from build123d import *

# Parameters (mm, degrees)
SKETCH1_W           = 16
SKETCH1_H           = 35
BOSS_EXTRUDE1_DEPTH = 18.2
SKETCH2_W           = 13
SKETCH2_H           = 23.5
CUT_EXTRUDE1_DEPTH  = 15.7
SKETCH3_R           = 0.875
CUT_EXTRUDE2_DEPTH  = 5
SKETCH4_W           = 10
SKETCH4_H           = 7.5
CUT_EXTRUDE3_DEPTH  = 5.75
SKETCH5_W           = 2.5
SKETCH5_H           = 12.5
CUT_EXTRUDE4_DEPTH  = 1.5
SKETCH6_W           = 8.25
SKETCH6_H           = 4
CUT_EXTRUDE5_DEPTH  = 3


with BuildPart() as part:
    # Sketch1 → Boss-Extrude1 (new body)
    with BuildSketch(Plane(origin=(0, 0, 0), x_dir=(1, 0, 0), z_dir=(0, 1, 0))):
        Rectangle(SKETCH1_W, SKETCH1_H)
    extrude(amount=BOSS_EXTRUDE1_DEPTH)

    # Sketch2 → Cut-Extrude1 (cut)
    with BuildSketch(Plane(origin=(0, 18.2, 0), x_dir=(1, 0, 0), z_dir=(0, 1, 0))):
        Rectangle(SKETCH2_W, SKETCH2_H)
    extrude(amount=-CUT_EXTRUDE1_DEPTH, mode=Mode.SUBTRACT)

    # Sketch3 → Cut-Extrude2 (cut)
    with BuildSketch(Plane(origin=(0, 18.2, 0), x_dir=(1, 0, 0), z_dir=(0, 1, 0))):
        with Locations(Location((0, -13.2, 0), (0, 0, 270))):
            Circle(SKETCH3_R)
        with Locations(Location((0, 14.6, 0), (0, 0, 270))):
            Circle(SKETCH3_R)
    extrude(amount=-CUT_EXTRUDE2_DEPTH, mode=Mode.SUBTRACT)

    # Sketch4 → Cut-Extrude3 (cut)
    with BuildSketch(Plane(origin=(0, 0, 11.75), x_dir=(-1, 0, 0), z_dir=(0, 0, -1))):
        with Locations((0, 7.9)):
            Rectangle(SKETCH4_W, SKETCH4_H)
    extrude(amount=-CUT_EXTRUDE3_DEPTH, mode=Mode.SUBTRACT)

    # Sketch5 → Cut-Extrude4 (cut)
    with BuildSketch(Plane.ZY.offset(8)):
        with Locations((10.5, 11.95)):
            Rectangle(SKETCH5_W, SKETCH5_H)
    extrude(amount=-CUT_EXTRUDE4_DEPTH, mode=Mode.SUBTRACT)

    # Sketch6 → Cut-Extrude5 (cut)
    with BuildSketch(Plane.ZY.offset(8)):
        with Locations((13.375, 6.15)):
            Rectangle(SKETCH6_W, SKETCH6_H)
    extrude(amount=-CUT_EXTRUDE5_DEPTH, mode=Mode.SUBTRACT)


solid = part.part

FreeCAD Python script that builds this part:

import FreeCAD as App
import Part
import Sketcher
from FreeCAD import Vector
Q = App.Units.Quantity

doc = App.newDocument("Part")
body = doc.addObject("PartDesign::Body", "Body")

# Sketch on XZ plane
sketch1 = doc.addObject("Sketcher::SketchObject", "Sketch")
body.addObject(sketch1)
sketch1.AttachmentSupport = (doc.XZ_Plane, [""])
sketch1.MapMode = "FlatFace"
sketch1.addGeometry(Part.LineSegment(Vector(-8, -18, 0), Vector(-8, 18, 0)), False)
sketch1.addGeometry(Part.LineSegment(Vector(-8, 18, 0), Vector(8, 18, 0)), False)
sketch1.addGeometry(Part.LineSegment(Vector(8, 18, 0), Vector(8, -18, 0)), False)
sketch1.addGeometry(Part.LineSegment(Vector(8, -18, 0), Vector(-8, -18, 0)), False)
sketch1.addConstraint(Sketcher.Constraint("Coincident", 0, 2, 1, 1))
sketch1.addConstraint(Sketcher.Constraint("Coincident", 1, 2, 2, 1))
sketch1.addConstraint(Sketcher.Constraint("Coincident", 2, 2, 3, 1))
sketch1.addConstraint(Sketcher.Constraint("Coincident", 3, 2, 0, 1))
sketch1.addConstraint(Sketcher.Constraint("Vertical", 0))
sketch1.addConstraint(Sketcher.Constraint("Horizontal", 1))
sketch1.addConstraint(Sketcher.Constraint("Vertical", 2))
sketch1.addConstraint(Sketcher.Constraint("Horizontal", 3))
sketch1.addConstraint(Sketcher.Constraint("Symmetric", 0, 2, 2, 2, -1, 1))
sketch1.addConstraint(Sketcher.Constraint("DistanceX", 1, 1, 1, 2, Q("16 mm")))
sketch1.addConstraint(Sketcher.Constraint("DistanceY", 0, 1, 0, 2, Q("35 mm")))
pad1 = doc.addObject("PartDesign::Pad", "Pad")
body.addObject(pad1)
pad1.Profile = sketch1
pad1.Length = 18.2
pad1.Reversed = True

# Sketch on XZ plane
sketch2 = doc.addObject("Sketcher::SketchObject", "Sketch001")
body.addObject(sketch2)
sketch2.AttachmentSupport = (doc.XZ_Plane, [""])
sketch2.MapMode = "FlatFace"
sketch2.AttachmentOffset = App.Placement(Vector(0, 0, -18.2), App.Rotation())
sketch2.addGeometry(Part.LineSegment(Vector(-6, -12, 0), Vector(-6, 12, 0)), False)
sketch2.addGeometry(Part.LineSegment(Vector(-6, 12, 0), Vector(6, 12, 0)), False)
sketch2.addGeometry(Part.LineSegment(Vector(6, 12, 0), Vector(6, -12, 0)), False)
sketch2.addGeometry(Part.LineSegment(Vector(6, -12, 0), Vector(-6, -12, 0)), False)
sketch2.addConstraint(Sketcher.Constraint("Coincident", 0, 2, 1, 1))
sketch2.addConstraint(Sketcher.Constraint("Coincident", 1, 2, 2, 1))
sketch2.addConstraint(Sketcher.Constraint("Coincident", 2, 2, 3, 1))
sketch2.addConstraint(Sketcher.Constraint("Coincident", 3, 2, 0, 1))
sketch2.addConstraint(Sketcher.Constraint("Vertical", 0))
sketch2.addConstraint(Sketcher.Constraint("Horizontal", 1))
sketch2.addConstraint(Sketcher.Constraint("Vertical", 2))
sketch2.addConstraint(Sketcher.Constraint("Horizontal", 3))
sketch2.addConstraint(Sketcher.Constraint("Symmetric", 0, 2, 2, 2, -1, 1))
sketch2.addConstraint(Sketcher.Constraint("DistanceX", 1, 1, 1, 2, Q("13 mm")))
sketch2.addConstraint(Sketcher.Constraint("DistanceY", 0, 1, 0, 2, Q("23.5 mm")))
pocket1 = doc.addObject("PartDesign::Pocket", "Pocket")
body.addObject(pocket1)
pocket1.Profile = sketch2
pocket1.Length = 15.7
pocket1.Reversed = True

# Sketch on XZ plane
sketch3 = doc.addObject("Sketcher::SketchObject", "Sketch002")
body.addObject(sketch3)
sketch3.AttachmentSupport = (doc.XZ_Plane, [""])
sketch3.MapMode = "FlatFace"
sketch3.AttachmentOffset = App.Placement(Vector(0, 0, -18.2), App.Rotation())
sketch3.addGeometry(Part.Circle(Vector(0, 13.2, 0), Vector(0, 0, 1), 0.9), False)
sketch3.addGeometry(Part.Circle(Vector(0, -14.6, 0), Vector(0, 0, 1), 0.9), False)
sketch3.addConstraint(Sketcher.Constraint("Equal", 0, 1))
sketch3.addConstraint(Sketcher.Constraint("PointOnObject", 0, 3, -2))
sketch3.addConstraint(Sketcher.Constraint("PointOnObject", 1, 3, -2))
sketch3.addConstraint(Sketcher.Constraint("Diameter", 0, Q("1.75 mm")))
sketch3.addConstraint(Sketcher.Constraint("DistanceY", -1, 1, 0, 3, Q("13.2 mm")))
sketch3.addConstraint(Sketcher.Constraint("DistanceY", 1, 3, -1, 1, Q("14.6 mm")))
pocket2 = doc.addObject("PartDesign::Pocket", "Pocket001")
body.addObject(pocket2)
pocket2.Profile = sketch3
pocket2.Length = 5
pocket2.Reversed = True

# Sketch on XY plane
sketch4 = doc.addObject("Sketcher::SketchObject", "Sketch003")
body.addObject(sketch4)
sketch4.AttachmentSupport = (doc.XY_Plane, [""])
sketch4.MapMode = "FlatFace"
sketch4.AttachmentOffset = App.Placement(Vector(0, 0, 11.75), App.Rotation())
sketch4.addGeometry(Part.LineSegment(Vector(5, 12, 0), Vector(5, 4, 0)), False)
sketch4.addGeometry(Part.LineSegment(Vector(5, 4, 0), Vector(-5, 4, 0)), False)
sketch4.addGeometry(Part.LineSegment(Vector(-5, 4, 0), Vector(-5, 12, 0)), False)
sketch4.addGeometry(Part.LineSegment(Vector(-5, 12, 0), Vector(5, 12, 0)), False)
sketch4.addConstraint(Sketcher.Constraint("Coincident", 0, 2, 1, 1))
sketch4.addConstraint(Sketcher.Constraint("Coincident", 1, 2, 2, 1))
sketch4.addConstraint(Sketcher.Constraint("Coincident", 2, 2, 3, 1))
sketch4.addConstraint(Sketcher.Constraint("Coincident", 3, 2, 0, 1))
sketch4.addConstraint(Sketcher.Constraint("Vertical", 0))
sketch4.addConstraint(Sketcher.Constraint("Horizontal", 1))
sketch4.addConstraint(Sketcher.Constraint("Vertical", 2))
sketch4.addConstraint(Sketcher.Constraint("Horizontal", 3))
sketch4.addConstraint(Sketcher.Constraint("DistanceX", 1, 2, 1, 1, Q("10 mm")))
sketch4.addConstraint(Sketcher.Constraint("DistanceY", 0, 2, 0, 1, Q("7.5 mm")))
sketch4.addConstraint(Sketcher.Constraint("DistanceX", -1, 1, 0, 2, Q("5 mm")))
sketch4.addConstraint(Sketcher.Constraint("DistanceY", -1, 1, 0, 2, Q("4.15 mm")))
pocket3 = doc.addObject("PartDesign::Pocket", "Pocket002")
body.addObject(pocket3)
pocket3.Profile = sketch4
pocket3.Length = 5.75
pocket3.Reversed = True

# Sketch on YZ plane
sketch5 = doc.addObject("Sketcher::SketchObject", "Sketch004")
body.addObject(sketch5)
sketch5.AttachmentSupport = (doc.YZ_Plane, [""])
sketch5.MapMode = "FlatFace"
sketch5.AttachmentOffset = App.Placement(Vector(0, 0, -8), App.Rotation())
sketch5.addGeometry(Part.LineSegment(Vector(18.2, 9.2, 0), Vector(5.7, 9.2, 0)), False)
sketch5.addGeometry(Part.LineSegment(Vector(5.7, 9.2, 0), Vector(5.7, 11.8, 0)), False)
sketch5.addGeometry(Part.LineSegment(Vector(5.7, 11.8, 0), Vector(18.2, 11.8, 0)), False)
sketch5.addGeometry(Part.LineSegment(Vector(18.2, 11.8, 0), Vector(18.2, 9.2, 0)), False)
sketch5.addConstraint(Sketcher.Constraint("Coincident", 0, 2, 1, 1))
sketch5.addConstraint(Sketcher.Constraint("Coincident", 1, 2, 2, 1))
sketch5.addConstraint(Sketcher.Constraint("Coincident", 2, 2, 3, 1))
sketch5.addConstraint(Sketcher.Constraint("Coincident", 3, 2, 0, 1))
sketch5.addConstraint(Sketcher.Constraint("Horizontal", 0))
sketch5.addConstraint(Sketcher.Constraint("Vertical", 1))
sketch5.addConstraint(Sketcher.Constraint("Horizontal", 2))
sketch5.addConstraint(Sketcher.Constraint("Vertical", 3))
sketch5.addConstraint(Sketcher.Constraint("DistanceX", 0, 2, 0, 1, Q("12.5 mm")))
sketch5.addConstraint(Sketcher.Constraint("DistanceY", 1, 1, 1, 2, Q("2.5 mm")))
sketch5.addConstraint(Sketcher.Constraint("DistanceX", -1, 1, 0, 2, Q("5.7 mm")))
sketch5.addConstraint(Sketcher.Constraint("DistanceY", -1, 1, 0, 2, Q("9.25 mm")))
pocket4 = doc.addObject("PartDesign::Pocket", "Pocket003")
body.addObject(pocket4)
pocket4.Profile = sketch5
pocket4.Length = 1.5
pocket4.Reversed = True

# Sketch on YZ plane
sketch6 = doc.addObject("Sketcher::SketchObject", "Sketch005")
body.addObject(sketch6)
sketch6.AttachmentSupport = (doc.YZ_Plane, [""])
sketch6.MapMode = "FlatFace"
sketch6.AttachmentOffset = App.Placement(Vector(0, 0, -8), App.Rotation())
sketch6.addGeometry(Part.LineSegment(Vector(8.2, 9.2, 0), Vector(4.2, 9.2, 0)), False)
sketch6.addGeometry(Part.LineSegment(Vector(4.2, 9.2, 0), Vector(4.2, 17.5, 0)), False)
sketch6.addGeometry(Part.LineSegment(Vector(4.2, 17.5, 0), Vector(8.2, 17.5, 0)), False)
sketch6.addGeometry(Part.LineSegment(Vector(8.2, 17.5, 0), Vector(8.2, 9.2, 0)), False)
sketch6.addConstraint(Sketcher.Constraint("Coincident", 0, 2, 1, 1))
sketch6.addConstraint(Sketcher.Constraint("Coincident", 1, 2, 2, 1))
sketch6.addConstraint(Sketcher.Constraint("Coincident", 2, 2, 3, 1))
sketch6.addConstraint(Sketcher.Constraint("Coincident", 3, 2, 0, 1))
sketch6.addConstraint(Sketcher.Constraint("Horizontal", 0))
sketch6.addConstraint(Sketcher.Constraint("Vertical", 1))
sketch6.addConstraint(Sketcher.Constraint("Horizontal", 2))
sketch6.addConstraint(Sketcher.Constraint("Vertical", 3))
sketch6.addConstraint(Sketcher.Constraint("DistanceX", 0, 2, 0, 1, Q("4 mm")))
sketch6.addConstraint(Sketcher.Constraint("DistanceY", 1, 1, 1, 2, Q("8.25 mm")))
sketch6.addConstraint(Sketcher.Constraint("DistanceY", -1, 1, 1, 2, Q("17.5 mm")))
sketch6.addConstraint(Sketcher.Constraint("DistanceX", -1, 1, 0, 2, Q("4.15 mm")))
pocket5 = doc.addObject("PartDesign::Pocket", "Pocket004")
body.addObject(pocket5)
pocket5.Profile = sketch6
pocket5.Length = 3
pocket5.Reversed = True

doc.recompute()
